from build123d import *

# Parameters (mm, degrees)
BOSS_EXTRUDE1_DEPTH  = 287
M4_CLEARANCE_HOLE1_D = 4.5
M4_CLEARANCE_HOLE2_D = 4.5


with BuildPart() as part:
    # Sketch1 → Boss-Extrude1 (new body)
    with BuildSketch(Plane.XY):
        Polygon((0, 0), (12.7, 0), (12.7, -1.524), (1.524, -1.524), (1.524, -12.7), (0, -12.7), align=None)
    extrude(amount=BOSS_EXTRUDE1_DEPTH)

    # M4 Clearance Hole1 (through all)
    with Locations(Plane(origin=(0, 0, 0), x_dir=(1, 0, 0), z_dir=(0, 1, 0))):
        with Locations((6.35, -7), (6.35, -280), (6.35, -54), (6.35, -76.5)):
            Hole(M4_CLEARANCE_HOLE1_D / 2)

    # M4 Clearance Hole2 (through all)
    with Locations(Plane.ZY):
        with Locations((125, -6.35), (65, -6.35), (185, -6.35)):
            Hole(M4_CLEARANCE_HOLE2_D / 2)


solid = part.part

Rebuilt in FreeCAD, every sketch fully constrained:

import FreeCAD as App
import Part
import Sketcher

V = App.Vector
Q = App.Units.Quantity

doc = App.newDocument("Part")
body = doc.addObject("PartDesign::Body", "Body")

# Sketch on XY plane
sketch1 = body.newObject("Sketcher::SketchObject", "Sketch")
sketch1.AttachmentSupport = (doc.getObject("XY_Plane"), [""])
sketch1.MapMode = "FlatFace"
sketch1.addGeometry(Part.LineSegment(V(12.7, 0, 0), V(0, 0, 0)), False)
sketch1.addGeometry(Part.LineSegment(V(0, 0, 0), V(0, -12.7, 0)), False)
sketch1.addGeometry(Part.LineSegment(V(0, -12.7, 0), V(1.5, -12.7, 0)), False)
sketch1.addGeometry(Part.LineSegment(V(1.5, -12.7, 0), V(1.5, -1.5, 0)), False)
sketch1.addGeometry(Part.LineSegment(V(1.5, -1.5, 0), V(12.7, -1.5, 0)), False)
sketch1.addGeometry(Part.LineSegment(V(12.7, -1.5, 0), V(12.7, 0, 0)), False)
sketch1.addConstraint(Sketcher.Constraint("Coincident", 0, 2, 1, 1))
sketch1.addConstraint(Sketcher.Constraint("Coincident", 1, 2, 2, 1))
sketch1.addConstraint(Sketcher.Constraint("Coincident", 2, 2, 3, 1))
sketch1.addConstraint(Sketcher.Constraint("Coincident", 3, 2, 4, 1))
sketch1.addConstraint(Sketcher.Constraint("Coincident", 4, 2, 5, 1))
sketch1.addConstraint(Sketcher.Constraint("Coincident", 5, 2, 0, 1))
sketch1.addConstraint(Sketcher.Constraint("Horizontal", 0))
sketch1.addConstraint(Sketcher.Constraint("Vertical", 1))
sketch1.addConstraint(Sketcher.Constraint("Horizontal", 2))
sketch1.addConstraint(Sketcher.Constraint("Vertical", 3))
sketch1.addConstraint(Sketcher.Constraint("Horizontal", 4))
sketch1.addConstraint(Sketcher.Constraint("Vertical", 5))
sketch1.addConstraint(Sketcher.Constraint("Coincident", 0, 2, -1, 1))
sketch1.addConstraint(Sketcher.Constraint("Equal", 0, 1))
sketch1.addConstraint(Sketcher.Constraint("Equal", 4, 3))
sketch1.addConstraint(Sketcher.Constraint("DistanceX", 0, 2, 0, 1, Q("0.5 in")))
sketch1.addConstraint(Sketcher.Constraint("DistanceX", 2, 1, 2, 2, Q("0.06 in")))
pad1 = body.newObject("PartDesign::Pad", "Pad")
pad1.Profile = sketch1
pad1.Length = 287

# Sketch on XZ plane
sketch2 = body.newObject("Sketcher::SketchObject", "Sketch001")
sketch2.AttachmentSupport = (doc.getObject("XZ_Plane"), [""])
sketch2.MapMode = "FlatFace"
sketch2.addGeometry(Part.Circle(V(6.3, 7, 0), V(0, 0, 1), 2.2), False)
sketch2.addGeometry(Part.Circle(V(6.3, 280, 0), V(0, 0, 1), 2.2), False)
sketch2.addGeometry(Part.Circle(V(6.3, 54, 0), V(0, 0, 1), 2.2), False)
sketch2.addGeometry(Part.Circle(V(6.3, 76.5, 0), V(0, 0, 1), 2.2), False)
sketch2.addConstraint(Sketcher.Constraint("Equal", 0, 1))
sketch2.addConstraint(Sketcher.Constraint("Equal", 1, 2))
sketch2.addConstraint(Sketcher.Constraint("Equal", 2, 3))
sketch2.addConstraint(Sketcher.Constraint("Vertical", 0, 3, 1, 3))
sketch2.addConstraint(Sketcher.Constraint("Vertical", 1, 3, 2, 3))
sketch2.addConstraint(Sketcher.Constraint("Vertical", 2, 3, 3, 3))
sketch2.addConstraint(Sketcher.Constraint("Diameter", 0, 4.5))
sketch2.addConstraint(Sketcher.Constraint("DistanceX", -1, 1, 0, 3, Q("0.25 in")))
sketch2.addConstraint(Sketcher.Constraint("DistanceY", -1, 1, 0, 3, 7.0))
sketch2.addConstraint(Sketcher.Constraint("DistanceY", -1, 1, 1, 3, 280.0))
sketch2.addConstraint(Sketcher.Constraint("DistanceY", -1, 1, 2, 3, 54.0))
sketch2.addConstraint(Sketcher.Constraint("DistanceY", -1, 1, 3, 3, 76.5))
doc.recompute()
hole = body.newObject("PartDesign::Hole", "Hole")
hole.Profile = sketch2
hole.ThreadType = "None"
hole.Diameter = 4.5
hole.DepthType = "ThroughAll"
hole.Reversed = True

# Sketch on YZ plane
sketch3 = body.newObject("Sketcher::SketchObject", "Sketch002")
sketch3.AttachmentSupport = (doc.getObject("YZ_Plane"), [""])
sketch3.MapMode = "FlatFace"
sketch3.addGeometry(Part.Circle(V(-6.3, 125, 0), V(0, 0, 1), 2.2), False)
sketch3.addGeometry(Part.Circle(V(-6.3, 65, 0), V(0, 0, 1), 2.2), False)
sketch3.addGeometry(Part.Circle(V(-6.3, 185, 0), V(0, 0, 1), 2.2), False)
sketch3.addConstraint(Sketcher.Constraint("Equal", 0, 1))
sketch3.addConstraint(Sketcher.Constraint("Equal", 1, 2))
sketch3.addConstraint(Sketcher.Constraint("Vertical", 0, 3, 1, 3))
sketch3.addConstraint(Sketcher.Constraint("Vertical", 1, 3, 2, 3))
sketch3.addConstraint(Sketcher.Constraint("Diameter", 0, 4.5))
sketch3.addConstraint(Sketcher.Constraint("DistanceX", 0, 3, -1, 1, Q("0.25 in")))
sketch3.addConstraint(Sketcher.Constraint("DistanceY", -1, 1, 0, 3, 125.0))
sketch3.addConstraint(Sketcher.Constraint("DistanceY", -1, 1, 1, 3, 65.0))
sketch3.addConstraint(Sketcher.Constraint("DistanceY", -1, 1, 2, 3, 185.0))
doc.recompute()
hole2 = body.newObject("PartDesign::Hole", "Hole001")
hole2.Profile = sketch3
hole2.ThreadType = "None"
hole2.Diameter = 4.5
hole2.DepthType = "ThroughAll"
hole2.Reversed = True

doc.recompute()
